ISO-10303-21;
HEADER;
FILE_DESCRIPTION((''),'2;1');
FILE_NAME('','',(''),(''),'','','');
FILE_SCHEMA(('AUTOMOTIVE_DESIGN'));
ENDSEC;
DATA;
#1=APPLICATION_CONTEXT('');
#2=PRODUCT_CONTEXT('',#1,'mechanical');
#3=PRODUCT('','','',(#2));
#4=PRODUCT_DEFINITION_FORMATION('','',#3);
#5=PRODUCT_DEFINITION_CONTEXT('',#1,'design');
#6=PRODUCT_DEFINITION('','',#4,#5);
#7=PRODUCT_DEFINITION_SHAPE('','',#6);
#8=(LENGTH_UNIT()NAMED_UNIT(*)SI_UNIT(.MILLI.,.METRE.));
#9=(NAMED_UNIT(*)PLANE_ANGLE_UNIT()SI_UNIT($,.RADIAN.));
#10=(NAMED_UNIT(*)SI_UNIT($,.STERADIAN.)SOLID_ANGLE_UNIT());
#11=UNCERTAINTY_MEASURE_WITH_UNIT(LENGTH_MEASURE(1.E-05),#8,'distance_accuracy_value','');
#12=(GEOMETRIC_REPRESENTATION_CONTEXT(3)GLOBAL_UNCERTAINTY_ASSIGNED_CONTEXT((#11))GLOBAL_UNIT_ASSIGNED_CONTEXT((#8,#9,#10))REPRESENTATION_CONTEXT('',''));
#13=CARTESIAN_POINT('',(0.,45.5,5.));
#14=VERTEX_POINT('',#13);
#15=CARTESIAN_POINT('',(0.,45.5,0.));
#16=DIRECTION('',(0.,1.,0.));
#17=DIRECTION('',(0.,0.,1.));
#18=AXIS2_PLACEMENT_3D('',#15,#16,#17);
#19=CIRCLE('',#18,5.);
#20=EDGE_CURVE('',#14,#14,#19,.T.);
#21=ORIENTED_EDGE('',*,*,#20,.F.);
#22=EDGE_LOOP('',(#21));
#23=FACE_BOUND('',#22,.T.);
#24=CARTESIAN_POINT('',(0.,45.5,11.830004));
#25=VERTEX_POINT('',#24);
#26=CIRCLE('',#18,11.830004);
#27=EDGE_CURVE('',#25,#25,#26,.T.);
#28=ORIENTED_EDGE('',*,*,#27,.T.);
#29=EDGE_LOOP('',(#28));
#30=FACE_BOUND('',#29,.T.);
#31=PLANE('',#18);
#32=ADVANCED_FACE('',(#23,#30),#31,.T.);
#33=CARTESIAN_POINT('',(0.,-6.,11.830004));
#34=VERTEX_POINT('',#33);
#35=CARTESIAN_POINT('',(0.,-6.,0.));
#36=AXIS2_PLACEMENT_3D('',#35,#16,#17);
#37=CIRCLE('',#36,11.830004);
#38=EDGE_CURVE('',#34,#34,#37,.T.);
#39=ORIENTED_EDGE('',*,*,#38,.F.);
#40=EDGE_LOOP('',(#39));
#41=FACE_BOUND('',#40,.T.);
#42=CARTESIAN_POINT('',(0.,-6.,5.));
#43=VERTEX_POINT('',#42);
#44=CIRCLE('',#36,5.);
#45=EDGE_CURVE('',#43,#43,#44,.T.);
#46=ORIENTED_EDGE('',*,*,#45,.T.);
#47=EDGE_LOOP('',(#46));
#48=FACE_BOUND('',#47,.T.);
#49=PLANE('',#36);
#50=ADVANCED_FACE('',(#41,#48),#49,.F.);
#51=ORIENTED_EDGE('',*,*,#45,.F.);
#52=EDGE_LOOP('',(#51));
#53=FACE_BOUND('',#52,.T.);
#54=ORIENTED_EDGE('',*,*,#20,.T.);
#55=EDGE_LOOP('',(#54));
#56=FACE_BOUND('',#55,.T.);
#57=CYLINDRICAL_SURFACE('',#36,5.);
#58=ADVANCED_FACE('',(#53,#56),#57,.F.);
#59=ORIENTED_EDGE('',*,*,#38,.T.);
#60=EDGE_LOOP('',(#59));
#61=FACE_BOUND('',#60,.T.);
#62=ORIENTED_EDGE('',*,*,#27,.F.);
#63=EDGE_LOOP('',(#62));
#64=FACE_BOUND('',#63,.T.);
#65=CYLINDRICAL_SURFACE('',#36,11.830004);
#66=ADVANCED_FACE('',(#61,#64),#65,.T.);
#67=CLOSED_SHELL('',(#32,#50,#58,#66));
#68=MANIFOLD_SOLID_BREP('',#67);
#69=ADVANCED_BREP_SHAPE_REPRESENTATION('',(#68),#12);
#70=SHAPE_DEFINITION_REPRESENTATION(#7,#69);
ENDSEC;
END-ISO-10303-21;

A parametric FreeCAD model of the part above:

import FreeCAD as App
import Part
import Sketcher

V = App.Vector
Q = App.Units.Quantity

doc = App.newDocument("Part")
params = doc.addObject("Spreadsheet::Sheet", "Params")
for row, (alias, value) in enumerate([
    ("sketch1_diameter", "10 mm"),
    ("pad1_length", "45.5 mm"),
    ("pad1_length2", "6 mm"),
], start=1):
    params.set(f"A{row}", alias)
    params.set(f"B{row}", "=" + value)
    params.setAlias(f"B{row}", alias)

body = doc.addObject("PartDesign::Body", "Body")

# Sketch on XZ plane
sketch1 = body.newObject("Sketcher::SketchObject", "Sketch")
sketch1.AttachmentSupport = (doc.getObject("XZ_Plane"), [""])
sketch1.MapMode = "FlatFace"
sketch1.addGeometry([
    Part.Circle(V(0, 0, 0), V(0, 0, 1), 12),
    Part.Circle(V(0, 0, 0), V(0, 0, 1), 5),
], False)
sketch1.addConstraint([
    Sketcher.Constraint("Coincident", 0, 3, -1, 1),
    Sketcher.Constraint("Coincident", 1, 3, -1, 1),
    Sketcher.Constraint("Diameter", 1, Q("10 mm")),
    Sketcher.Constraint("Diameter", 0, Q("23.660009 mm")),
])
sketch1.setExpression("Constraints[2]", "Params.sketch1_diameter")
pad1 = body.newObject("PartDesign::Pad", "Pad")
pad1.Profile = sketch1
pad1.Type = "TwoLengths"
pad1.setExpression("Length", "Params.pad1_length")
pad1.setExpression("Length2", "Params.pad1_length2")
pad1.Reversed = True

doc.recompute()
